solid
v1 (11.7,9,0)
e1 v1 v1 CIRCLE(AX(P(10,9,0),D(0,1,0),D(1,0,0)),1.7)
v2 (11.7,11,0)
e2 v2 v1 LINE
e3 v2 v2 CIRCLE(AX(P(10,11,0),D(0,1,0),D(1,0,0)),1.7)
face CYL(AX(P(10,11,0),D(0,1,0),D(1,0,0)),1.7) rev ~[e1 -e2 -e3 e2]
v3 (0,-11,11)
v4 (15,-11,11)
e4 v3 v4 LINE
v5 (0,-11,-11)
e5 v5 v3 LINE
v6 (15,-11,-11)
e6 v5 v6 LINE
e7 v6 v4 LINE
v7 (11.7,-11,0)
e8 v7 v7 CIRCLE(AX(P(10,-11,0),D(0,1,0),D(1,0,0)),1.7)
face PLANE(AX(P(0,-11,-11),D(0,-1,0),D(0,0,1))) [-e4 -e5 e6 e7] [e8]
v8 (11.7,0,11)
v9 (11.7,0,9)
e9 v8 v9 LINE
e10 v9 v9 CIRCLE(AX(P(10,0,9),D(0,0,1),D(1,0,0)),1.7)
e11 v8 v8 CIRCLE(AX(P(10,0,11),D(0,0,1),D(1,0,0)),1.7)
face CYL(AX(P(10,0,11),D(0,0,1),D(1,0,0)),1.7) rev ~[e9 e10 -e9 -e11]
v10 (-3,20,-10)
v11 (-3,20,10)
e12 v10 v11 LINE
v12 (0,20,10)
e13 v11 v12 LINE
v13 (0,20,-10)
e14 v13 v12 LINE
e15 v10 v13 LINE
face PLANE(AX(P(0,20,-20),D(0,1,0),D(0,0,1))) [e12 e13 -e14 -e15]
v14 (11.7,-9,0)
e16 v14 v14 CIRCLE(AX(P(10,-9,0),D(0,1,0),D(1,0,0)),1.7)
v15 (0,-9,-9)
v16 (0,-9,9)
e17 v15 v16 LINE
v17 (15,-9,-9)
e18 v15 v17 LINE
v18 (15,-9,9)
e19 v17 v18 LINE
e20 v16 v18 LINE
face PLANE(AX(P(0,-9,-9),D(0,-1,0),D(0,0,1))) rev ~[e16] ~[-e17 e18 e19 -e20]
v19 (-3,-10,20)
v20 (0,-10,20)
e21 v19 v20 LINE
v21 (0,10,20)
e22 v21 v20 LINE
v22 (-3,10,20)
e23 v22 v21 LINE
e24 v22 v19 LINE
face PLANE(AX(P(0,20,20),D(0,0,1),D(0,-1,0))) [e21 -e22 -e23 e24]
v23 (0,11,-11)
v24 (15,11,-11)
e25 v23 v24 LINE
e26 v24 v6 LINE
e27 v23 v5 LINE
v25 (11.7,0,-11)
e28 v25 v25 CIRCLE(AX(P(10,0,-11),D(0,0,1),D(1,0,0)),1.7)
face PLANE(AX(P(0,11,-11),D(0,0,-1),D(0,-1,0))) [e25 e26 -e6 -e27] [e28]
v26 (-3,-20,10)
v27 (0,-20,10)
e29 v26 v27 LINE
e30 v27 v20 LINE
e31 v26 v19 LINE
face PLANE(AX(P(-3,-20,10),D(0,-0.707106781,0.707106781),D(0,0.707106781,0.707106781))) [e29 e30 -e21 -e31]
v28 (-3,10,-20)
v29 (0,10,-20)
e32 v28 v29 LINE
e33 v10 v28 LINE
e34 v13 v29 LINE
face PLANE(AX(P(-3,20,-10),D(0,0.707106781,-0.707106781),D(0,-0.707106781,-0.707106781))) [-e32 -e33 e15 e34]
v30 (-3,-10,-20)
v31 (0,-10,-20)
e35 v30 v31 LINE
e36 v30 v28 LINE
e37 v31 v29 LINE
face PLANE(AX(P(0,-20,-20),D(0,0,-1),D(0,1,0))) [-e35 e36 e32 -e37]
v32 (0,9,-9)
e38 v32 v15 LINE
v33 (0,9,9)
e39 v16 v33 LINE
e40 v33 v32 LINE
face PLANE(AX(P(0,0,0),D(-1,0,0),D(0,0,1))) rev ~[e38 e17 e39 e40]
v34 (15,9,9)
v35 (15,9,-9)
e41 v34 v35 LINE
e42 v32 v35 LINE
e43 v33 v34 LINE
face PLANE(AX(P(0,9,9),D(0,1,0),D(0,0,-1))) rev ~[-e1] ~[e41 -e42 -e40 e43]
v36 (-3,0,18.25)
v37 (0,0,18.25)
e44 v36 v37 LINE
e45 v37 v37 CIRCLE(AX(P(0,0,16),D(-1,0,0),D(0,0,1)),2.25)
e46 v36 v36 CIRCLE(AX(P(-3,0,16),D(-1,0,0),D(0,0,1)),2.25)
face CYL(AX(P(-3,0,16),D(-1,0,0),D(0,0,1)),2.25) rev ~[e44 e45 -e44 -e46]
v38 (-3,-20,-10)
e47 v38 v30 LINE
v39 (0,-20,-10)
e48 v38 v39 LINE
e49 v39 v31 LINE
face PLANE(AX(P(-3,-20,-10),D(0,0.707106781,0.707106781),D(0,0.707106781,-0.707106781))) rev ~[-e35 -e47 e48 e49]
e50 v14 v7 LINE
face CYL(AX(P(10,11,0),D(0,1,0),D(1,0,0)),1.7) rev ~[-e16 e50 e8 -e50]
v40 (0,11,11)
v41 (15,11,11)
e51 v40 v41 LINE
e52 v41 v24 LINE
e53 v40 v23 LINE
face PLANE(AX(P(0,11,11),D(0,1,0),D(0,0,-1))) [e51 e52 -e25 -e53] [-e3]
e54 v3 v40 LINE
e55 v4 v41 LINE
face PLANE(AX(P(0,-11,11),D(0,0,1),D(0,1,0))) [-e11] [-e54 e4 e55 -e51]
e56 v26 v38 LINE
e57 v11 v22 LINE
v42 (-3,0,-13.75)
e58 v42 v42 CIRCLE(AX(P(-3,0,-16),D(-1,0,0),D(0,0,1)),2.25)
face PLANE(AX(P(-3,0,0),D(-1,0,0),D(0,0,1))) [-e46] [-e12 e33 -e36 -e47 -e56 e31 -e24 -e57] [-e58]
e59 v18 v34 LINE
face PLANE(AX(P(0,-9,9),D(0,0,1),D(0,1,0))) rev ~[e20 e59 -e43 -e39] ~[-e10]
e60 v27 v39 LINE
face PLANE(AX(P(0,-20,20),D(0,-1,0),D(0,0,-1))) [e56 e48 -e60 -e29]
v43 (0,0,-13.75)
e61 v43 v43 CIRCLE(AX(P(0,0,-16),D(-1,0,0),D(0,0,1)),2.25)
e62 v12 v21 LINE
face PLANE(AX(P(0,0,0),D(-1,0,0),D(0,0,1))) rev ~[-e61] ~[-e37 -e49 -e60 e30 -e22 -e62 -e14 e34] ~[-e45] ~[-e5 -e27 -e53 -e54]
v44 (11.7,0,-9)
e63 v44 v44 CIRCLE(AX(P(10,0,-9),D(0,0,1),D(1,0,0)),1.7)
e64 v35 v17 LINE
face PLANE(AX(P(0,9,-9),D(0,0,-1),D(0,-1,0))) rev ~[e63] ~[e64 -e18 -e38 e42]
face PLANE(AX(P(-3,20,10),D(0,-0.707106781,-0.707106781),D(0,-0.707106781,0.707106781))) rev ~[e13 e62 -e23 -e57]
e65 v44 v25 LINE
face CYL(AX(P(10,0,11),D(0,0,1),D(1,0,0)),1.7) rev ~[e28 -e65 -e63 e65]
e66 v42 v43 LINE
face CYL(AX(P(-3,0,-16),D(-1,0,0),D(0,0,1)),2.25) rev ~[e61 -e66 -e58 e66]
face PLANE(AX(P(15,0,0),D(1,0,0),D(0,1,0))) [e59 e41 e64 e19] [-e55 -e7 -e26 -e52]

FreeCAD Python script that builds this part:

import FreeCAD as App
import Part
import Sketcher

V = App.Vector


def add_polygon(sketch, points):
    """Adds a closed chain of lines whose ends are joined by coincident constraints."""
    first, n = sketch.GeometryCount, len(points)
    for a, b in zip(points, points[1:] + points[:1]):
        sketch.addGeometry(Part.LineSegment(App.Vector(*a, 0), App.Vector(*b, 0)), False)
    for i in range(n):
        sketch.addConstraint(Sketcher.Constraint("Coincident", first + i, 2, first + (i + 1) % n, 1))

doc = App.newDocument("Part")
body = doc.addObject("PartDesign::Body", "Body")

# Sketch on YZ plane
sketch1 = body.newObject("Sketcher::SketchObject", "Sketch")
sketch1.AttachmentSupport = (doc.getObject("YZ_Plane"), [""])
sketch1.MapMode = "FlatFace"
add_polygon(sketch1, [(-11, -11), (11, -11), (11, 11), (-11, 11)])  # lines 0-3
add_polygon(sketch1, [(9, 9), (9, -9), (-9, -9), (-9, 9)])  # lines 4-7
sketch1.addConstraint(Sketcher.Constraint("Horizontal", 0))
sketch1.addConstraint(Sketcher.Constraint("Vertical", 1))
sketch1.addConstraint(Sketcher.Constraint("Horizontal", 2))
sketch1.addConstraint(Sketcher.Constraint("Vertical", 3))
sketch1.addConstraint(Sketcher.Constraint("Vertical", 4))
sketch1.addConstraint(Sketcher.Constraint("Horizontal", 5))
sketch1.addConstraint(Sketcher.Constraint("Vertical", 6))
sketch1.addConstraint(Sketcher.Constraint("Horizontal", 7))
sketch1.addConstraint(Sketcher.Constraint("Symmetric", 0, 2, 2, 2, -1, 1))
sketch1.addConstraint(Sketcher.Constraint("Symmetric", 4, 2, 6, 2, -1, 1))
sketch1.addConstraint(Sketcher.Constraint("Equal", 2, 1))
sketch1.addConstraint(Sketcher.Constraint("Equal", 7, 4))
sketch1.addConstraint(Sketcher.Constraint("DistanceX", 0, 1, 0, 2, 22.0))
sketch1.addConstraint(Sketcher.Constraint("DistanceX", 5, 2, 5, 1, 18.0))
pad1 = body.newObject("PartDesign::Pad", "Pad")
pad1.Profile = sketch1
pad1.Length = 15

# Sketch on XY plane
sketch2 = body.newObject("Sketcher::SketchObject", "Sketch001")
sketch2.AttachmentSupport = (doc.getObject("XY_Plane"), [""])
sketch2.MapMode = "FlatFace"
sketch2.AttachmentOffset = App.Placement(V(0, 0, 11), App.Rotation())
sketch2.addGeometry(Part.Circle(V(10, 0, 0), V(0, 0, 1), 1.7), False)
sketch2.addConstraint(Sketcher.Constraint("PointOnObject", 0, 3, -1))
sketch2.addConstraint(Sketcher.Constraint("Diameter", 0, 3.4))
sketch2.addConstraint(Sketcher.Constraint("DistanceX", -1, 1, 0, 3, 10.0))
pocket1 = body.newObject("PartDesign::Pocket", "Pocket")
pocket1.Profile = sketch2
pocket1.Length = 30

# Sketch on XZ plane
sketch3 = body.newObject("Sketcher::SketchObject", "Sketch002")
sketch3.AttachmentSupport = (doc.getObject("XZ_Plane"), [""])
sketch3.MapMode = "FlatFace"
sketch3.AttachmentOffset = App.Placement(V(0, 0, -11), App.Rotation())
sketch3.addGeometry(Part.Circle(V(10, 0, 0), V(0, 0, 1), 1.7), False)
sketch3.addConstraint(Sketcher.Constraint("PointOnObject", 0, 3, -1))
sketch3.addConstraint(Sketcher.Constraint("Diameter", 0, 3.4))
sketch3.addConstraint(Sketcher.Constraint("DistanceX", -1, 1, 0, 3, 10.0))
pocket2 = body.newObject("PartDesign::Pocket", "Pocket001")
pocket2.Profile = sketch3
pocket2.Length = 30
pocket2.Reversed = True

# Sketch on YZ plane
sketch4 = body.newObject("Sketcher::SketchObject", "Sketch003")
sketch4.AttachmentSupport = (doc.getObject("YZ_Plane"), [""])
sketch4.MapMode = "FlatFace"
add_polygon(sketch4, [(-20, -20), (-20, 20), (20, 20), (20, -20)])  # lines 0-3
sketch4.addConstraint(Sketcher.Constraint("Vertical", 0))
sketch4.addConstraint(Sketcher.Constraint("Horizontal", 1))
sketch4.addConstraint(Sketcher.Constraint("Vertical", 2))
sketch4.addConstraint(Sketcher.Constraint("Horizontal", 3))
sketch4.addConstraint(Sketcher.Constraint("Symmetric", 0, 2, 2, 2, -1, 1))
sketch4.addConstraint(Sketcher.Constraint("Equal", 3, 0))
sketch4.addConstraint(Sketcher.Constraint("DistanceX", 1, 1, 1, 2, 40.0))
pad2 = body.newObject("PartDesign::Pad", "Pad001")
pad2.Profile = sketch4
pad2.Length = 3
pad2.Reversed = True

# Sketch on YZ plane
sketch5 = body.newObject("Sketcher::SketchObject", "Sketch004")
sketch5.AttachmentSupport = (doc.getObject("YZ_Plane"), [""])
sketch5.MapMode = "FlatFace"
sketch5.AttachmentOffset = App.Placement(V(0, 0, -3), App.Rotation())
sketch5.addGeometry(Part.Circle(V(0, 16, 0), V(0, 0, 1), 2.2), False)
sketch5.addGeometry(Part.Circle(V(0, -16, 0), V(0, 0, 1), 2.2), False)
sketch5.addConstraint(Sketcher.Constraint("Equal", 0, 1))
sketch5.addConstraint(Sketcher.Constraint("Symmetric", 0, 3, 1, 3, -1, 1))
sketch5.addConstraint(Sketcher.Constraint("PointOnObject", 0, 3, -2))
sketch5.addConstraint(Sketcher.Constraint("Diameter", 0, 4.5))
sketch5.addConstraint(Sketcher.Constraint("DistanceY", -1, 1, 0, 3, 16.0))
pocket3 = body.newObject("PartDesign::Pocket", "Pocket002")
pocket3.Profile = sketch5
pocket3.Length = 3
pocket3.Reversed = True

# Sketch on YZ plane
sketch6 = body.newObject("Sketcher::SketchObject", "Sketch005")
sketch6.AttachmentSupport = (doc.getObject("YZ_Plane"), [""])
sketch6.MapMode = "FlatFace"
sketch6.AttachmentOffset = App.Placement(V(0, 0, -3), App.Rotation())
add_polygon(sketch6, [(10, 20), (20, 20), (20, 10)])  # lines 0-2
add_polygon(sketch6, [(10, -20), (20, -10), (20, -20)])  # lines 3-5
add_polygon(sketch6, [(-20, 20), (-10, 20), (-20, 10)])  # lines 6-8
add_polygon(sketch6, [(-20, -10), (-10, -20), (-20, -20)])  # lines 9-11
sketch6.addConstraint(Sketcher.Constraint("Horizontal", 0))
sketch6.addConstraint(Sketcher.Constraint("Vertical", 1))
sketch6.addConstraint(Sketcher.Constraint("Vertical", 4))
sketch6.addConstraint(Sketcher.Constraint("Horizontal", 5))
sketch6.addConstraint(Sketcher.Constraint("Horizontal", 6))
sketch6.addConstraint(Sketcher.Constraint("Vertical", 8))
sketch6.addConstraint(Sketcher.Constraint("Horizontal", 10))
sketch6.addConstraint(Sketcher.Constraint("Vertical", 11))
sketch6.addConstraint(Sketcher.Constraint("Symmetric", 5, 2, 6, 2, -1, 1))
sketch6.addConstraint(Sketcher.Constraint("Symmetric", 3, 2, 7, 2, -1, 1))
sketch6.addConstraint(Sketcher.Constraint("Symmetric", 2, 2, 9, 2, -1, 1))
sketch6.addConstraint(Sketcher.Constraint("Symmetric", 1, 2, 11, 2, -1, 1))
sketch6.addConstraint(Sketcher.Constraint("Symmetric", 2, 2, 6, 2, -2))
sketch6.addConstraint(Sketcher.Constraint("Symmetric", 1, 2, 7, 2, -2))
sketch6.addConstraint(Sketcher.Constraint("Perpendicular", 2, 3))
sketch6.addConstraint(Sketcher.Constraint("DistanceX", 0, 1, 0, 2, 10.0))
sketch6.addConstraint(Sketcher.Constraint("DistanceY", -1, 1, 1, 2, 10.0))
sketch6.addConstraint(Sketcher.Constraint("DistanceX", -1, 1, 2, 2, 10.0))
pocket4 = body.newObject("PartDesign::Pocket", "Pocket003")
pocket4.Profile = sketch6
pocket4.Length = 3
pocket4.Reversed = True

doc.recompute()
